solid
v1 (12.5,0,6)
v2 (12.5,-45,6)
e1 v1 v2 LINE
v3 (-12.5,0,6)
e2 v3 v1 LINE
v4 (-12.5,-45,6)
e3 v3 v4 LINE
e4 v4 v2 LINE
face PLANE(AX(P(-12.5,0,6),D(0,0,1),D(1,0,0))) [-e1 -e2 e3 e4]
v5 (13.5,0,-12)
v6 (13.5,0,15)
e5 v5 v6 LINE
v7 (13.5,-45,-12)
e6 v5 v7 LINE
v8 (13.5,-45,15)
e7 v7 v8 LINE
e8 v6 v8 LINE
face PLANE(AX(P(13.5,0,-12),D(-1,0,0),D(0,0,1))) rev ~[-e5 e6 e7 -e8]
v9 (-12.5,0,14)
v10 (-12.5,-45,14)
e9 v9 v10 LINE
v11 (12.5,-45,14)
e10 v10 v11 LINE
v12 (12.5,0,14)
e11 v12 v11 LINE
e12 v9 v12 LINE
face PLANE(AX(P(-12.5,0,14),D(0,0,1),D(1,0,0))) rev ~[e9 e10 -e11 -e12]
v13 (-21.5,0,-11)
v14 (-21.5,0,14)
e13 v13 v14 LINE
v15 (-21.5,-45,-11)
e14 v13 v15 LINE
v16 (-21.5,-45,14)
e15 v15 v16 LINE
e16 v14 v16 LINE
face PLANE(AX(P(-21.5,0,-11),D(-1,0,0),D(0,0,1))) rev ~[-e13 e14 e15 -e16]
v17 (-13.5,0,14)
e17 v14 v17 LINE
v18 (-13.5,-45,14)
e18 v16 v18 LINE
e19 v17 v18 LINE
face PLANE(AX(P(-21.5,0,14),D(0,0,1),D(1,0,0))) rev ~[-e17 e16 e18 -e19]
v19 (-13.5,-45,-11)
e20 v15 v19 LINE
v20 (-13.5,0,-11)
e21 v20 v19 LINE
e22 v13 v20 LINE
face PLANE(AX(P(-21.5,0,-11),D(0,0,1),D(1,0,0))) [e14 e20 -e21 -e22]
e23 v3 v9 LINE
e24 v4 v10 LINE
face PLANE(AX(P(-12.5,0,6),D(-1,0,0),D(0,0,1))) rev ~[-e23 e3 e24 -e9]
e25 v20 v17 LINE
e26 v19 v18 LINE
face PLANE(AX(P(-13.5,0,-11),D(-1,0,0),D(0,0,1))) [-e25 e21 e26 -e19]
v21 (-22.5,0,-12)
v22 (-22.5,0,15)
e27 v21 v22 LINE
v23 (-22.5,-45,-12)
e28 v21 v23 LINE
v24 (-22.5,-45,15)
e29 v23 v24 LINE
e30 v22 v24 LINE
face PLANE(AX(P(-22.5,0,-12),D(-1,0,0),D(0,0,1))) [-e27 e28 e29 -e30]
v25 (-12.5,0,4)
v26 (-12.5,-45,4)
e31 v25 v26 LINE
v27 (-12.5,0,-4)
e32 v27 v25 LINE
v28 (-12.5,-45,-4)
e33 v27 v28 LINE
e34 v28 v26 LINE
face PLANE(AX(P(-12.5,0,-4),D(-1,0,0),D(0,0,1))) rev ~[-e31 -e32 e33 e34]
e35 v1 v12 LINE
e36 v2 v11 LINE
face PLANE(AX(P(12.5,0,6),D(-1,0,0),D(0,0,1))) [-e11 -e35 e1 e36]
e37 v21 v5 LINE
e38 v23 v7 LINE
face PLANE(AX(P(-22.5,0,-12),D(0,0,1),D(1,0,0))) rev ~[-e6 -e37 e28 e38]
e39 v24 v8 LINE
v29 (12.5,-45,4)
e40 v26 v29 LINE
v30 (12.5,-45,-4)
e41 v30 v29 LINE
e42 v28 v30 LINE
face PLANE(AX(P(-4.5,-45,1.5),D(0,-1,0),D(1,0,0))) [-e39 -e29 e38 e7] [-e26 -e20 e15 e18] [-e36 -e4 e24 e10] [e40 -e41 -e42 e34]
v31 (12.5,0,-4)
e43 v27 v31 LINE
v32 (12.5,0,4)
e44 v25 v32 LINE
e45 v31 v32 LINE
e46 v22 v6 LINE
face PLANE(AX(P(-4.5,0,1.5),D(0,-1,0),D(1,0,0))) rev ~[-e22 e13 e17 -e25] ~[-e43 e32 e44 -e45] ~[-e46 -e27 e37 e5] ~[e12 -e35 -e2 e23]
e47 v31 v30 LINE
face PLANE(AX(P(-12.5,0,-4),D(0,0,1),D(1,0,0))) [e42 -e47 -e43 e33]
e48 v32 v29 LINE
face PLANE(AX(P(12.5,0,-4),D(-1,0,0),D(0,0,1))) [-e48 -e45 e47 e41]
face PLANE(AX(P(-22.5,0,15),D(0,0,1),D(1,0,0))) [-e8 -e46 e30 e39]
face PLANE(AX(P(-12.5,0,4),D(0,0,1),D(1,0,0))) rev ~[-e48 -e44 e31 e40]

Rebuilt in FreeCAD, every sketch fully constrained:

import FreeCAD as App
import Part
import Sketcher
from FreeCAD import Vector

doc = App.newDocument("Part")
body = doc.addObject("PartDesign::Body", "Body")

sketch1 = doc.addObject("Sketcher::SketchObject", "Sketch")
body.addObject(sketch1)
sketch1.AttachmentSupport = (doc.XZ_Plane, [""])
sketch1.MapMode = "FlatFace"
sketch1.addGeometry([
    Part.LineSegment(Vector(-22, 15, 0), Vector(-22, -12, 0)),
    Part.LineSegment(Vector(-22, -12, 0), Vector(14, -12, 0)),
    Part.LineSegment(Vector(14, -12, 0), Vector(14, 15, 0)),
    Part.LineSegment(Vector(14, 15, 0), Vector(-22, 15, 0)),
    Part.LineSegment(Vector(12, -4, 0), Vector(-12, -4, 0)),
    Part.LineSegment(Vector(-12, -4, 0), Vector(-12, 4, 0)),
    Part.LineSegment(Vector(-12, 4, 0), Vector(12, 4, 0)),
    Part.LineSegment(Vector(12, 4, 0), Vector(12, -4, 0)),
    Part.LineSegment(Vector(-14, -11, 0), Vector(-22, -11, 0)),
    Part.LineSegment(Vector(-22, -11, 0), Vector(-22, 14, 0)),
    Part.LineSegment(Vector(-22, 14, 0), Vector(-14, 14, 0)),
    Part.LineSegment(Vector(-14, 14, 0), Vector(-14, -11, 0)),
    Part.LineSegment(Vector(12, 6, 0), Vector(-12, 6, 0)),
    Part.LineSegment(Vector(-12, 6, 0), Vector(-12, 14, 0)),
    Part.LineSegment(Vector(-12, 14, 0), Vector(12, 14, 0)),
    Part.LineSegment(Vector(12, 14, 0), Vector(12, 6, 0)),
], False)
sketch1.addConstraint([
    Sketcher.Constraint("Coincident", 0, 2, 1, 1),
    Sketcher.Constraint("Coincident", 1, 2, 2, 1),
    Sketcher.Constraint("Coincident", 2, 2, 3, 1),
    Sketcher.Constraint("Coincident", 3, 2, 0, 1),
    Sketcher.Constraint("Coincident", 4, 2, 5, 1),
    Sketcher.Constraint("Coincident", 5, 2, 6, 1),
    Sketcher.Constraint("Coincident", 6, 2, 7, 1),
    Sketcher.Constraint("Coincident", 7, 2, 4, 1),
    Sketcher.Constraint("Coincident", 8, 2, 9, 1),
    Sketcher.Constraint("Coincident", 9, 2, 10, 1),
    Sketcher.Constraint("Coincident", 10, 2, 11, 1),
    Sketcher.Constraint("Coincident", 11, 2, 8, 1),
    Sketcher.Constraint("Coincident", 12, 2, 13, 1),
    Sketcher.Constraint("Coincident", 13, 2, 14, 1),
    Sketcher.Constraint("Coincident", 14, 2, 15, 1),
    Sketcher.Constraint("Coincident", 15, 2, 12, 1),
    Sketcher.Constraint("Vertical", 0),
    Sketcher.Constraint("Horizontal", 1),
    Sketcher.Constraint("Vertical", 2),
    Sketcher.Constraint("Horizontal", 3),
    Sketcher.Constraint("Horizontal", 4),
    Sketcher.Constraint("Vertical", 5),
    Sketcher.Constraint("Horizontal", 6),
    Sketcher.Constraint("Vertical", 7),
    Sketcher.Constraint("Horizontal", 8),
    Sketcher.Constraint("Vertical", 9),
    Sketcher.Constraint("Horizontal", 10),
    Sketcher.Constraint("Vertical", 11),
    Sketcher.Constraint("Horizontal", 12),
    Sketcher.Constraint("Vertical", 13),
    Sketcher.Constraint("Horizontal", 14),
    Sketcher.Constraint("Vertical", 15),
    Sketcher.Constraint("Symmetric", 4, 2, 6, 2, -1, 1),
    Sketcher.Constraint("Horizontal", 10, 2, 13, 2),
    Sketcher.Constraint("Vertical", 5, 2, 12, 2),
    Sketcher.Constraint("Vertical", 7, 2, 14, 2),
    Sketcher.Constraint("Equal", 10, 5),
    Sketcher.Constraint("Equal", 14, 9),
    Sketcher.Constraint("Equal", 7, 13),
    Sketcher.Constraint("DistanceX", 1, 1, 1, 2, 36.0),
    Sketcher.Constraint("DistanceX", 4, 2, 4, 1, 25.0),
    Sketcher.Constraint("DistanceX", 8, 2, 8, 1, 8.0),
    Sketcher.Constraint("DistanceY", 0, 2, 0, 1, 27.0),
    Sketcher.Constraint("DistanceY", 0, 2, -1, 1, 12.0),
    Sketcher.Constraint("DistanceY", 8, 2, -1, 1, 11.0),
    Sketcher.Constraint("DistanceX", 0, 2, 4, 2, 10.0),
    Sketcher.Constraint("DistanceX", 0, 2, 8, 2, 1.0),
])
pad1 = doc.addObject("PartDesign::Pad", "Pad")
body.addObject(pad1)
pad1.Profile = sketch1
pad1.Length = 45

doc.recompute()
